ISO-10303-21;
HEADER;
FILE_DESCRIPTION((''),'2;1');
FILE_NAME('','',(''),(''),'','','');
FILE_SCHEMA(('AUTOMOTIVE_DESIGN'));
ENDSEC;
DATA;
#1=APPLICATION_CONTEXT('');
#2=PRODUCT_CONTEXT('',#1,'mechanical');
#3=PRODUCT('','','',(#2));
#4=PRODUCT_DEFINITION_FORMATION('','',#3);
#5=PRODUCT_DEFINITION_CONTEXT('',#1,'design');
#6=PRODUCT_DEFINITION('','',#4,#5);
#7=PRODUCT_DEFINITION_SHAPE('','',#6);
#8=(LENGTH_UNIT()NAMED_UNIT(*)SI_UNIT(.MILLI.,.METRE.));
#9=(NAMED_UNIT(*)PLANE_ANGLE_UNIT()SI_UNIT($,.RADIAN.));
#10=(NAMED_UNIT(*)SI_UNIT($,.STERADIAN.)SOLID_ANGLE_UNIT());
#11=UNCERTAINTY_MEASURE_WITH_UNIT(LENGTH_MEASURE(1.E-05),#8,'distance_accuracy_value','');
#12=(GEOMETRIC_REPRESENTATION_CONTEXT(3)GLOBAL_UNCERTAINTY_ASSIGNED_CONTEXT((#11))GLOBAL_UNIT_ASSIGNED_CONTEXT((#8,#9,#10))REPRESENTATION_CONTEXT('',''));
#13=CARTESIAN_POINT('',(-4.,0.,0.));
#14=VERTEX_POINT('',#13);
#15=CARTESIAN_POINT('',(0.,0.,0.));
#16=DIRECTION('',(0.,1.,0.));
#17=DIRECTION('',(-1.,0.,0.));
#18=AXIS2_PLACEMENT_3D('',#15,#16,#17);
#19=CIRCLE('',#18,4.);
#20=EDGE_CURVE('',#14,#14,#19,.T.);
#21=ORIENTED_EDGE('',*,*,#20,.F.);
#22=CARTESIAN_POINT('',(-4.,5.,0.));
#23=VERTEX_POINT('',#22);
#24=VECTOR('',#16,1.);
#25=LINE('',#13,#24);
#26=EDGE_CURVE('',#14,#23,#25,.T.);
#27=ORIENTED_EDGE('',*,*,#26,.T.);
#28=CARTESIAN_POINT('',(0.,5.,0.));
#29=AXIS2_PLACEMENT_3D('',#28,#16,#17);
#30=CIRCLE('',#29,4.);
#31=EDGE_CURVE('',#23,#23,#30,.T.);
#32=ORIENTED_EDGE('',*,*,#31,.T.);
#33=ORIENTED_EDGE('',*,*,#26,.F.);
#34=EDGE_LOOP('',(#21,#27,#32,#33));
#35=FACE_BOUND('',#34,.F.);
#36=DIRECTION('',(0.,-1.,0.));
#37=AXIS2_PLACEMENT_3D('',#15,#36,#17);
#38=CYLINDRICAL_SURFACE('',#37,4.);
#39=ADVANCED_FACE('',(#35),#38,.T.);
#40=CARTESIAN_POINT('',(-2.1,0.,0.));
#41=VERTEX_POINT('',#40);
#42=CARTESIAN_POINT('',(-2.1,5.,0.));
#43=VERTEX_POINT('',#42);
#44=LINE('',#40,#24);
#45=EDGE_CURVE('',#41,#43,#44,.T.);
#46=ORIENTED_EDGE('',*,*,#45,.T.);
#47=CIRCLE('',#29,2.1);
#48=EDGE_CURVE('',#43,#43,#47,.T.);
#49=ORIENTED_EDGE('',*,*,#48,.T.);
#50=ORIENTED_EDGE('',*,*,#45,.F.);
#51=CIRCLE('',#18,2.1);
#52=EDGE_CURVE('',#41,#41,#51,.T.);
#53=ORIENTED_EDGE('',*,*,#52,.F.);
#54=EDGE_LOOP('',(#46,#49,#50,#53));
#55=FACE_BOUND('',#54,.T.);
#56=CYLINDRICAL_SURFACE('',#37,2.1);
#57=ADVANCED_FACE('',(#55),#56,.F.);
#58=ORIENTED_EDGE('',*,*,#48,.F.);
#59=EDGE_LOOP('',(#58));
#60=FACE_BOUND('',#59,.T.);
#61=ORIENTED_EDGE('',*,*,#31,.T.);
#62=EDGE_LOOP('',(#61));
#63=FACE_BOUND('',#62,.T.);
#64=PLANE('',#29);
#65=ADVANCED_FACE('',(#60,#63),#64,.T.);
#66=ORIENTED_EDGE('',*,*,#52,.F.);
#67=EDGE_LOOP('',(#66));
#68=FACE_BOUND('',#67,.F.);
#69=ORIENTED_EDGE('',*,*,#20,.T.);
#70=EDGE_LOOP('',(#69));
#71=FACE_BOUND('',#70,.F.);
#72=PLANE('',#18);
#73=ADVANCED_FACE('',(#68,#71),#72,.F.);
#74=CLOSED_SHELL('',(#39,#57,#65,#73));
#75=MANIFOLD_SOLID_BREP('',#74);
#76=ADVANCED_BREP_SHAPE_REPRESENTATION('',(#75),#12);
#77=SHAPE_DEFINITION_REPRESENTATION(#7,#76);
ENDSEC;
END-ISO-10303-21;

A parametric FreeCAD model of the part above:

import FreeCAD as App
import Part
import Sketcher

V = App.Vector

doc = App.newDocument("Part")
params = doc.addObject("Spreadsheet::Sheet", "Params")
for row, (alias, value) in enumerate([
    ("sketch1_diameter", "8 mm"),
    ("sketch1_diameter2", "4.2 mm"),
    ("pad1_length", "5 mm"),
], start=1):
    params.set(f"A{row}", alias)
    params.set(f"B{row}", "=" + value)
    params.setAlias(f"B{row}", alias)

body = doc.addObject("PartDesign::Body", "Body")

# Sketch on XZ plane
sketch1 = body.newObject("Sketcher::SketchObject", "Sketch")
sketch1.AttachmentSupport = (doc.getObject("XZ_Plane"), [""])
sketch1.MapMode = "FlatFace"
sketch1.addGeometry(Part.Circle(V(0, 0, 0), V(0, 0, 1), 4), False)
sketch1.addGeometry(Part.Circle(V(0, 0, 0), V(0, 0, 1), 2.1), False)
sketch1.addConstraint(Sketcher.Constraint("Coincident", 0, 3, -1, 1))
sketch1.addConstraint(Sketcher.Constraint("Coincident", 1, 3, -1, 1))
sketch1.addConstraint(Sketcher.Constraint("Diameter", 0, 8.0))
sketch1.addConstraint(Sketcher.Constraint("Diameter", 1, 4.2))
sketch1.setExpression("Constraints[2]", "Params.sketch1_diameter")
sketch1.setExpression("Constraints[3]", "Params.sketch1_diameter2")
pad1 = body.newObject("PartDesign::Pad", "Pad")
pad1.Profile = sketch1
pad1.setExpression("Length", "Params.pad1_length")
pad1.Reversed = True

doc.recompute()
